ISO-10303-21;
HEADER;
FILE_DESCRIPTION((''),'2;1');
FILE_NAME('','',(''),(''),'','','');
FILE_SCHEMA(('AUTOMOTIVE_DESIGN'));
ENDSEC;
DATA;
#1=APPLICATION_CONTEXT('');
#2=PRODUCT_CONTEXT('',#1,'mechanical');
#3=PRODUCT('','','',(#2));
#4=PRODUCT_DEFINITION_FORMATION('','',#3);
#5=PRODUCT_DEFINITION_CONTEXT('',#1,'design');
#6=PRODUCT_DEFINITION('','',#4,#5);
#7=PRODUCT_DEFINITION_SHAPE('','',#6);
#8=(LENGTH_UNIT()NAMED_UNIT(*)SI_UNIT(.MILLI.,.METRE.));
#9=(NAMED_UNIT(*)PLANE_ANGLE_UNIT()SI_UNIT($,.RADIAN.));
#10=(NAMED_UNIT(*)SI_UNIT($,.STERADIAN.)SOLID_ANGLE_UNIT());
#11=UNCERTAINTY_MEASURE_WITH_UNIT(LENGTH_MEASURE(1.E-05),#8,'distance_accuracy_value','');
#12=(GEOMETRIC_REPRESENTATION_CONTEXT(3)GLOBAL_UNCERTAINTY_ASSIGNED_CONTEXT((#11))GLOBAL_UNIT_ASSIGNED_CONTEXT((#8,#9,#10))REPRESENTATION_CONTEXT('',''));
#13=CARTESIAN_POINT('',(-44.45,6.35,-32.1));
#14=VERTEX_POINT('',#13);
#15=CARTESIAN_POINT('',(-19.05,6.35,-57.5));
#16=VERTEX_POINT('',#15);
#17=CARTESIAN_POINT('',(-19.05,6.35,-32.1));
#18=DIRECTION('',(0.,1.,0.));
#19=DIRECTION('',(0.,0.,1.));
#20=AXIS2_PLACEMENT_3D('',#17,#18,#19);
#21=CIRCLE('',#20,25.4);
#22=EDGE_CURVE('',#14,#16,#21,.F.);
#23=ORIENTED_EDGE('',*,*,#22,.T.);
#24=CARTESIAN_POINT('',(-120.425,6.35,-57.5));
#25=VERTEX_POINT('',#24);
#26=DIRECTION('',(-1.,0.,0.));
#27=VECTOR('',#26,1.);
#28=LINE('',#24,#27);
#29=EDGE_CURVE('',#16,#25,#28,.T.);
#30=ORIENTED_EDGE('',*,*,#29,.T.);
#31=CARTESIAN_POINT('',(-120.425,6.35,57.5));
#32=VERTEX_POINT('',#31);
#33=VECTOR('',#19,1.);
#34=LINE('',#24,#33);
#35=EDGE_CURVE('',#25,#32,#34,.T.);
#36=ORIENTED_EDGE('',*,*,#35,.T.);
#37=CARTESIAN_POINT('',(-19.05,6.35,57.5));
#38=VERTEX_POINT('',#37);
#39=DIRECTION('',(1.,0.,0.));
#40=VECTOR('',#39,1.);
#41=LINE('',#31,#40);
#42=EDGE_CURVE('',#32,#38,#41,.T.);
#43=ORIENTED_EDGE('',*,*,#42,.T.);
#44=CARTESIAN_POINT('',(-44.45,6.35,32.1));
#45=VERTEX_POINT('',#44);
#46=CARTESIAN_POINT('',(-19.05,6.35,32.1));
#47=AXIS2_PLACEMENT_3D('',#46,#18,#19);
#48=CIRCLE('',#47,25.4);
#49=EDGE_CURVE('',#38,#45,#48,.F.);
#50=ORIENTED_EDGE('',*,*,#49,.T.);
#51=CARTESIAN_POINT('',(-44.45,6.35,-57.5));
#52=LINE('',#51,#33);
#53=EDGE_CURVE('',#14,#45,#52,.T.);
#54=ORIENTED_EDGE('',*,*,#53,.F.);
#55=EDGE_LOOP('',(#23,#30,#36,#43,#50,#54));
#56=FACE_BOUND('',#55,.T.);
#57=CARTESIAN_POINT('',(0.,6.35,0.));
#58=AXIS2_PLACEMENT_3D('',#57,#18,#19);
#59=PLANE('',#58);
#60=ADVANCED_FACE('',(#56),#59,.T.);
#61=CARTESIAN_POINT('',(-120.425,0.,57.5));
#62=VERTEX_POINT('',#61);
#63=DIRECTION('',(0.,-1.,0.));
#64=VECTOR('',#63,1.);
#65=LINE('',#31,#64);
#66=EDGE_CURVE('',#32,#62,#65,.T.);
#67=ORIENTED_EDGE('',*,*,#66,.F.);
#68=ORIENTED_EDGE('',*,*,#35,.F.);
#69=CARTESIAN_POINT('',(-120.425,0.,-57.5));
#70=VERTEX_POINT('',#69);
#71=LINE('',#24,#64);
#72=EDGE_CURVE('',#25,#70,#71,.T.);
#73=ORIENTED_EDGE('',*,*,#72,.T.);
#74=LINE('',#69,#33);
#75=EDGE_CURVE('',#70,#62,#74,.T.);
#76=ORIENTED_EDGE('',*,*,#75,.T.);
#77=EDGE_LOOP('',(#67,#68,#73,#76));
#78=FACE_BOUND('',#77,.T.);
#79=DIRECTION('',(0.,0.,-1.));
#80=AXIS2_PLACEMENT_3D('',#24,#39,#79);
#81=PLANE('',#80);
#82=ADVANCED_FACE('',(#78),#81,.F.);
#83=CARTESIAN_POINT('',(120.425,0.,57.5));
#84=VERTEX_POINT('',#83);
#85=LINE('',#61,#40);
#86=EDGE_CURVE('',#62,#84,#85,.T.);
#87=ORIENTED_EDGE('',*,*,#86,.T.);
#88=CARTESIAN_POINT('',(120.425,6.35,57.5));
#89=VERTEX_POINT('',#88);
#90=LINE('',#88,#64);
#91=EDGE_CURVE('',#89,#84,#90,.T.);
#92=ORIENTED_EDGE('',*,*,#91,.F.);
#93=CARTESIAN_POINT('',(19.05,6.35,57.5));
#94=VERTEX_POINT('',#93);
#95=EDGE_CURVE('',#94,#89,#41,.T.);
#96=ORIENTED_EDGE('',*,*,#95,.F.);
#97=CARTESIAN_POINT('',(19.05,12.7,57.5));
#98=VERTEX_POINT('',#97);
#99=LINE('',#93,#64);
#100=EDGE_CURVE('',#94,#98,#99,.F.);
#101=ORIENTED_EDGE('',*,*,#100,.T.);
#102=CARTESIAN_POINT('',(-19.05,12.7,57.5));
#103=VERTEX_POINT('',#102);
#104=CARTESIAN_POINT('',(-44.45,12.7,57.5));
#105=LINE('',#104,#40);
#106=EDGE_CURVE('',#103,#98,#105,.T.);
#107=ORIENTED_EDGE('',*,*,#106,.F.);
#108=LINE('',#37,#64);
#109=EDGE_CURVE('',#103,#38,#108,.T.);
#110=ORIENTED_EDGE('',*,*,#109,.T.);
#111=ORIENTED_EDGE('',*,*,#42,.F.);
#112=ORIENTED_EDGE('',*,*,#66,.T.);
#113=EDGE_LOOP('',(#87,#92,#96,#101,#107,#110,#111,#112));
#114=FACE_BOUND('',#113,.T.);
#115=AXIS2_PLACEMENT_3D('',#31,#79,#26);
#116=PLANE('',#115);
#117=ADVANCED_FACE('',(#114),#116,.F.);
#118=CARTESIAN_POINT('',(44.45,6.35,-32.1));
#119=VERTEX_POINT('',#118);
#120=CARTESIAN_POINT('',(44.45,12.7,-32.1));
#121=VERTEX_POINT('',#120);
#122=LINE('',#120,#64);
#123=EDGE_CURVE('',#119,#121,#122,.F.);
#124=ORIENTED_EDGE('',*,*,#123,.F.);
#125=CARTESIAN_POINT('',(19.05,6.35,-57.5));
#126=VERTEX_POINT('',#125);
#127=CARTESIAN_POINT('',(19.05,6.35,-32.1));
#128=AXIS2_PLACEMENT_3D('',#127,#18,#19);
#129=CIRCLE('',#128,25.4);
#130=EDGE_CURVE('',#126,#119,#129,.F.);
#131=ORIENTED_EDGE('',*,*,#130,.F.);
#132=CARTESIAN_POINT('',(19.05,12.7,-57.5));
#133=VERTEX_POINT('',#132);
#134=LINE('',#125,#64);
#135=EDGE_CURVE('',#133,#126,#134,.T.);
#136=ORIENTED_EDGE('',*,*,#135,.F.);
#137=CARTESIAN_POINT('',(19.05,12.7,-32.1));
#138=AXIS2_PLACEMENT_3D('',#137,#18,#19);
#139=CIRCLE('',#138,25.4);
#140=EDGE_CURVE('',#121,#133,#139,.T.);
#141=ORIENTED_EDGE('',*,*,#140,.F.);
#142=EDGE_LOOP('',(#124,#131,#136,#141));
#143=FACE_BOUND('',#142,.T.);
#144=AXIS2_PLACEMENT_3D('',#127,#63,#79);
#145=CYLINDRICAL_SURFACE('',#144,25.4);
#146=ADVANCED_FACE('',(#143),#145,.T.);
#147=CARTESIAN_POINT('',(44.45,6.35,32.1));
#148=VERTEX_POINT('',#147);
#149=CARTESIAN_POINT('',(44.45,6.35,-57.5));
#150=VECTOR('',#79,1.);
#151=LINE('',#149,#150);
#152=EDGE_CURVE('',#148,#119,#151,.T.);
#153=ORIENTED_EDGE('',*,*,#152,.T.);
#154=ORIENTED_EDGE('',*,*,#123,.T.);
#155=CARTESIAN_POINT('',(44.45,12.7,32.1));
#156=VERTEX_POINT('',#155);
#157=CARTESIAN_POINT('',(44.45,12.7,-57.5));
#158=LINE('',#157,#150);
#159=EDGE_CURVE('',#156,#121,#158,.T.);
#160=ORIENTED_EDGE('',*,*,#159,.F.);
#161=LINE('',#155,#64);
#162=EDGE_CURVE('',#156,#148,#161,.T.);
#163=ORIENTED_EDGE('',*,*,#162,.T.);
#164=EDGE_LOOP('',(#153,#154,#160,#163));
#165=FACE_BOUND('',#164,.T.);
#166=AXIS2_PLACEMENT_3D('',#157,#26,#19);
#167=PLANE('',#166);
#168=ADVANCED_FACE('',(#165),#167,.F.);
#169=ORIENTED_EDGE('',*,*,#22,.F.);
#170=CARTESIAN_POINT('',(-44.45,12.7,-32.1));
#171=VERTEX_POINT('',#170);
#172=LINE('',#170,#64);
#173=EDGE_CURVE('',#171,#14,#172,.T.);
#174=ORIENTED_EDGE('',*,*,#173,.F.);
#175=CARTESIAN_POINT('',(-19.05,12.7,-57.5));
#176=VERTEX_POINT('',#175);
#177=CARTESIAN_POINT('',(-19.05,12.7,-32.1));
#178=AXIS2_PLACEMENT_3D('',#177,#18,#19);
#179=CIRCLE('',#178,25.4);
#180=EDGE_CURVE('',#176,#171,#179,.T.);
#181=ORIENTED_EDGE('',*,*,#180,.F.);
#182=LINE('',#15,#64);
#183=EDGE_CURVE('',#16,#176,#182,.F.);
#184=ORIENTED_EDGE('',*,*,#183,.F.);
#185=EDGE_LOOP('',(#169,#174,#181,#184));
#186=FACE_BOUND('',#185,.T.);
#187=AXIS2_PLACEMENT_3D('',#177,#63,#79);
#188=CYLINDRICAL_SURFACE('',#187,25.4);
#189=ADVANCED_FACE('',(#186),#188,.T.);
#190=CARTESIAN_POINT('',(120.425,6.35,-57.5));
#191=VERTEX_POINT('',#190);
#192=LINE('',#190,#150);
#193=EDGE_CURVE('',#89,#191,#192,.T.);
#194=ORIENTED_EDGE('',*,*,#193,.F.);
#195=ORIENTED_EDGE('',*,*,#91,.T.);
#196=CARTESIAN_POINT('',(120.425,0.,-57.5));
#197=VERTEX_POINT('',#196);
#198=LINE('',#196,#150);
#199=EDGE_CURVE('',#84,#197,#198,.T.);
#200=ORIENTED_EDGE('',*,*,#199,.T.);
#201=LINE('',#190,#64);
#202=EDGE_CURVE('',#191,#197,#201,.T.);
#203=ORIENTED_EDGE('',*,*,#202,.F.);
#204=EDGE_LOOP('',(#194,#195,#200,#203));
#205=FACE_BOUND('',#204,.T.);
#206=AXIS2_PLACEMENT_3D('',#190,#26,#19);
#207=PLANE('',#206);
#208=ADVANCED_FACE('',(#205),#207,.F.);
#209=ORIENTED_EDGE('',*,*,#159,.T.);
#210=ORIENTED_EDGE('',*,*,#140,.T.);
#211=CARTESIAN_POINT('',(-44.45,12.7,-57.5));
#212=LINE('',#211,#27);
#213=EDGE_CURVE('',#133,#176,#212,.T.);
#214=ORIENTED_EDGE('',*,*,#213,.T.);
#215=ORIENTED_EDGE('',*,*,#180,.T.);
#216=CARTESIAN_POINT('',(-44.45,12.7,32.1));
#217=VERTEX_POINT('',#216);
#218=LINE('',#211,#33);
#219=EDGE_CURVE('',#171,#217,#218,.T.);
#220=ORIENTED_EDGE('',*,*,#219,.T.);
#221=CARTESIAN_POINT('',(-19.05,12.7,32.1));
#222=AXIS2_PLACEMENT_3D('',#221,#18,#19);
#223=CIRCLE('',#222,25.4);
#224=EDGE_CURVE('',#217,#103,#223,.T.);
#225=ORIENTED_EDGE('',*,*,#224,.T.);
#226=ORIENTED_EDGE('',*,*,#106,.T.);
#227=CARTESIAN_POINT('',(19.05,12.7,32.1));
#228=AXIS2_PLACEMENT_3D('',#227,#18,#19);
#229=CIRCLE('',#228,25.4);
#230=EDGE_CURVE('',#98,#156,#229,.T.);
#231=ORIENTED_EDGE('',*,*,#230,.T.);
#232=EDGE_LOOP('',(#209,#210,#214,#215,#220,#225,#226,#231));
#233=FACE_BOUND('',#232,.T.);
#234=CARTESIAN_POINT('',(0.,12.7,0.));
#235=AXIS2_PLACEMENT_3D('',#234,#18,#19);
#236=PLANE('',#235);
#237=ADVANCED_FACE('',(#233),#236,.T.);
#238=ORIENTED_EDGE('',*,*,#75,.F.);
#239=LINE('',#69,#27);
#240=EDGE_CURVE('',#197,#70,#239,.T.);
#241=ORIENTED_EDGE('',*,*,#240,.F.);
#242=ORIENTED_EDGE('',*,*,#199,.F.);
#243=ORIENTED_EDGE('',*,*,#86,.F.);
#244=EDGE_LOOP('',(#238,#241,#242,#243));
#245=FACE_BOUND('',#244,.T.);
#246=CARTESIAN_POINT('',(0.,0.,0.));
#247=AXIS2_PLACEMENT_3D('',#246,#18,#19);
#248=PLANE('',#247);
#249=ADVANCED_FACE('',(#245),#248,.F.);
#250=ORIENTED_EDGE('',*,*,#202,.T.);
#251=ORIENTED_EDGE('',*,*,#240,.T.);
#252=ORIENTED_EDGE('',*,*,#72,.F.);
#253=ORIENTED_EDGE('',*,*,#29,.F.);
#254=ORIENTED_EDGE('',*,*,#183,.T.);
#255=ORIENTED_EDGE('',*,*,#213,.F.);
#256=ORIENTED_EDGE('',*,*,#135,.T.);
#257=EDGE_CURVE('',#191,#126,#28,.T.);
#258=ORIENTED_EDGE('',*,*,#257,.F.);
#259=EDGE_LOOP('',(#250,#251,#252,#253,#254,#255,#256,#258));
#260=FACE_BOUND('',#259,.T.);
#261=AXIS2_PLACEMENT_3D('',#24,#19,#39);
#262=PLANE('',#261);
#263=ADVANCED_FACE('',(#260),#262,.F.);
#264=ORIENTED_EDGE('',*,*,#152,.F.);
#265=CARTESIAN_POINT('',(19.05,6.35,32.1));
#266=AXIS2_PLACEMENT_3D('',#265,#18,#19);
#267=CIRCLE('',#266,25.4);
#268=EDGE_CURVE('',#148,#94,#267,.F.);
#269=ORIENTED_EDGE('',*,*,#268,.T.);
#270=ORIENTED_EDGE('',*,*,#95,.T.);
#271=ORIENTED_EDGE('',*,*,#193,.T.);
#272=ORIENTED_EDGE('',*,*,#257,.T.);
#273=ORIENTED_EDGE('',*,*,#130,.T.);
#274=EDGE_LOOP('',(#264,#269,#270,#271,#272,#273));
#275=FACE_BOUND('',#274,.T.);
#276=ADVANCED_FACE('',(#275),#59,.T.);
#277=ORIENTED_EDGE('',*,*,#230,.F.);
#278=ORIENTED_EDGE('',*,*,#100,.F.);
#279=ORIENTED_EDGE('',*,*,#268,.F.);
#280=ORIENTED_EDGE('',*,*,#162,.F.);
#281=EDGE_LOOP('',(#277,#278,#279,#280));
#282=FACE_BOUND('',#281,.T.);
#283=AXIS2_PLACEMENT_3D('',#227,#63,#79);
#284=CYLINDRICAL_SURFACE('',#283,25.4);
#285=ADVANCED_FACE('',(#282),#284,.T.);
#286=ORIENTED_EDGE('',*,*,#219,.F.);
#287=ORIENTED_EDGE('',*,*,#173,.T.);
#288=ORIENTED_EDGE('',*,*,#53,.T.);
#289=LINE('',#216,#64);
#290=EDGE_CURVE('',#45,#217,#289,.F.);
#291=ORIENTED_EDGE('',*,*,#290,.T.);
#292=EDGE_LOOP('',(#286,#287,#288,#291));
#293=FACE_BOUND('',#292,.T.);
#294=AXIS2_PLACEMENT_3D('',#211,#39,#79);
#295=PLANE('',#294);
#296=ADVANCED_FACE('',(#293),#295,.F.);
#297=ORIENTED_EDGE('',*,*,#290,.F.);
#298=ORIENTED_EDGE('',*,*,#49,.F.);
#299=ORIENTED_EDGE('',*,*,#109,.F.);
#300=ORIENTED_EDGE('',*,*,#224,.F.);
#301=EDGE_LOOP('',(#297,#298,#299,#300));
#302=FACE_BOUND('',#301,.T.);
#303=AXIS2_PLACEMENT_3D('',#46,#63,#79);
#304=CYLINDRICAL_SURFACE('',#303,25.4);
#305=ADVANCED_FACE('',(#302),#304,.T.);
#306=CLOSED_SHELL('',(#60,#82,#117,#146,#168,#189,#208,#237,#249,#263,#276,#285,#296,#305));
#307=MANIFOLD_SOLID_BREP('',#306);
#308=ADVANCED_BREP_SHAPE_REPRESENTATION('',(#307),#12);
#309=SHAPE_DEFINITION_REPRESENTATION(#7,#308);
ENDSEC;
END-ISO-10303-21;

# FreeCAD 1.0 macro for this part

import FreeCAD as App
import Part
import Sketcher

V = App.Vector
Q = App.Units.Quantity


def edges_at(feature, points):
    """Names of the edges that pass closest to the given points."""
    edges = feature.Shape.Edges
    near = lambda p: min(range(len(edges)), key=lambda i: edges[i].distToShape(Part.Vertex(*p))[0])
    return sorted({f"Edge{near(p) + 1}" for p in points})


def add_polygon(sketch, points):
    """Adds a closed chain of lines whose ends are joined by coincident constraints."""
    first, n = sketch.GeometryCount, len(points)
    for a, b in zip(points, points[1:] + points[:1]):
        sketch.addGeometry(Part.LineSegment(App.Vector(*a, 0), App.Vector(*b, 0)), False)
    for i in range(n):
        sketch.addConstraint(Sketcher.Constraint("Coincident", first + i, 2, first + (i + 1) % n, 1))

doc = App.newDocument("Part")
params = doc.addObject("Spreadsheet::Sheet", "Params")
for row, (alias, value) in enumerate([
    ("pad1_length", "0.25 in"),
    ("sketch2_width", "3.5 in"),
    ("pad2_length", "0.25 in"),
    ("fillet_radius", "1 in"),
], start=1):
    params.set(f"A{row}", alias)
    params.set(f"B{row}", "=" + value)
    params.setAlias(f"B{row}", alias)

body = doc.addObject("PartDesign::Body", "Body")

# Sketch on XZ plane
sketch1 = body.newObject("Sketcher::SketchObject", "Sketch")
sketch1.AttachmentSupport = (doc.getObject("XZ_Plane"), [""])
sketch1.MapMode = "FlatFace"
add_polygon(sketch1, [(-120, -58), (-120, 58), (120, 58), (120, -58)])  # lines 0-3
sketch1.addConstraint(Sketcher.Constraint("Vertical", 0))
sketch1.addConstraint(Sketcher.Constraint("Horizontal", 1))
sketch1.addConstraint(Sketcher.Constraint("Vertical", 2))
sketch1.addConstraint(Sketcher.Constraint("Horizontal", 3))
sketch1.addConstraint(Sketcher.Constraint("Symmetric", 0, 2, 2, 2, -1, 1))
sketch1.addConstraint(Sketcher.Constraint("DistanceX", 1, 1, 1, 2, 240.85))
sketch1.addConstraint(Sketcher.Constraint("DistanceY", 0, 1, 0, 2, 115.0))
pad1 = body.newObject("PartDesign::Pad", "Pad")
pad1.Profile = sketch1
pad1.setExpression("Length", "Params.pad1_length")
pad1.Reversed = True

# Sketch on XZ plane
sketch2 = body.newObject("Sketcher::SketchObject", "Sketch001")
sketch2.AttachmentSupport = (doc.getObject("XZ_Plane"), [""])
sketch2.MapMode = "FlatFace"
sketch2.AttachmentOffset = App.Placement(V(0, 0, -0.25 * 25.4), App.Rotation())
add_polygon(sketch2, [(-44, -58), (-44, 58), (44, 58), (44, -58)])  # lines 0-3
sketch2.addConstraint(Sketcher.Constraint("Vertical", 0))
sketch2.addConstraint(Sketcher.Constraint("Horizontal", 1))
sketch2.addConstraint(Sketcher.Constraint("Vertical", 2))
sketch2.addConstraint(Sketcher.Constraint("Horizontal", 3))
sketch2.addConstraint(Sketcher.Constraint("Symmetric", 0, 2, 2, 2, -1, 1))
sketch2.addConstraint(Sketcher.Constraint("DistanceX", 1, 1, 1, 2, Q("3.5 in")))
sketch2.addConstraint(Sketcher.Constraint("DistanceY", 0, 1, 0, 2, 115.0))
sketch2.setExpression("Constraints[9]", "Params.sketch2_width")
pad2 = body.newObject("PartDesign::Pad", "Pad001")
pad2.Profile = sketch2
pad2.setExpression("Length", "Params.pad2_length")
pad2.Reversed = True
doc.recompute()

fillet = body.newObject("PartDesign::Fillet", "Fillet")
fillet.Base = (pad2, edges_at(pad2, [
    (44.45, 9.525, 57.5),
    (44.45, 9.525, -57.5),
    (-44.45, 9.525, -57.5),
    (-44.45, 9.525, 57.5),
]))
fillet.setExpression("Radius", "Params.fillet_radius")

doc.recompute()
